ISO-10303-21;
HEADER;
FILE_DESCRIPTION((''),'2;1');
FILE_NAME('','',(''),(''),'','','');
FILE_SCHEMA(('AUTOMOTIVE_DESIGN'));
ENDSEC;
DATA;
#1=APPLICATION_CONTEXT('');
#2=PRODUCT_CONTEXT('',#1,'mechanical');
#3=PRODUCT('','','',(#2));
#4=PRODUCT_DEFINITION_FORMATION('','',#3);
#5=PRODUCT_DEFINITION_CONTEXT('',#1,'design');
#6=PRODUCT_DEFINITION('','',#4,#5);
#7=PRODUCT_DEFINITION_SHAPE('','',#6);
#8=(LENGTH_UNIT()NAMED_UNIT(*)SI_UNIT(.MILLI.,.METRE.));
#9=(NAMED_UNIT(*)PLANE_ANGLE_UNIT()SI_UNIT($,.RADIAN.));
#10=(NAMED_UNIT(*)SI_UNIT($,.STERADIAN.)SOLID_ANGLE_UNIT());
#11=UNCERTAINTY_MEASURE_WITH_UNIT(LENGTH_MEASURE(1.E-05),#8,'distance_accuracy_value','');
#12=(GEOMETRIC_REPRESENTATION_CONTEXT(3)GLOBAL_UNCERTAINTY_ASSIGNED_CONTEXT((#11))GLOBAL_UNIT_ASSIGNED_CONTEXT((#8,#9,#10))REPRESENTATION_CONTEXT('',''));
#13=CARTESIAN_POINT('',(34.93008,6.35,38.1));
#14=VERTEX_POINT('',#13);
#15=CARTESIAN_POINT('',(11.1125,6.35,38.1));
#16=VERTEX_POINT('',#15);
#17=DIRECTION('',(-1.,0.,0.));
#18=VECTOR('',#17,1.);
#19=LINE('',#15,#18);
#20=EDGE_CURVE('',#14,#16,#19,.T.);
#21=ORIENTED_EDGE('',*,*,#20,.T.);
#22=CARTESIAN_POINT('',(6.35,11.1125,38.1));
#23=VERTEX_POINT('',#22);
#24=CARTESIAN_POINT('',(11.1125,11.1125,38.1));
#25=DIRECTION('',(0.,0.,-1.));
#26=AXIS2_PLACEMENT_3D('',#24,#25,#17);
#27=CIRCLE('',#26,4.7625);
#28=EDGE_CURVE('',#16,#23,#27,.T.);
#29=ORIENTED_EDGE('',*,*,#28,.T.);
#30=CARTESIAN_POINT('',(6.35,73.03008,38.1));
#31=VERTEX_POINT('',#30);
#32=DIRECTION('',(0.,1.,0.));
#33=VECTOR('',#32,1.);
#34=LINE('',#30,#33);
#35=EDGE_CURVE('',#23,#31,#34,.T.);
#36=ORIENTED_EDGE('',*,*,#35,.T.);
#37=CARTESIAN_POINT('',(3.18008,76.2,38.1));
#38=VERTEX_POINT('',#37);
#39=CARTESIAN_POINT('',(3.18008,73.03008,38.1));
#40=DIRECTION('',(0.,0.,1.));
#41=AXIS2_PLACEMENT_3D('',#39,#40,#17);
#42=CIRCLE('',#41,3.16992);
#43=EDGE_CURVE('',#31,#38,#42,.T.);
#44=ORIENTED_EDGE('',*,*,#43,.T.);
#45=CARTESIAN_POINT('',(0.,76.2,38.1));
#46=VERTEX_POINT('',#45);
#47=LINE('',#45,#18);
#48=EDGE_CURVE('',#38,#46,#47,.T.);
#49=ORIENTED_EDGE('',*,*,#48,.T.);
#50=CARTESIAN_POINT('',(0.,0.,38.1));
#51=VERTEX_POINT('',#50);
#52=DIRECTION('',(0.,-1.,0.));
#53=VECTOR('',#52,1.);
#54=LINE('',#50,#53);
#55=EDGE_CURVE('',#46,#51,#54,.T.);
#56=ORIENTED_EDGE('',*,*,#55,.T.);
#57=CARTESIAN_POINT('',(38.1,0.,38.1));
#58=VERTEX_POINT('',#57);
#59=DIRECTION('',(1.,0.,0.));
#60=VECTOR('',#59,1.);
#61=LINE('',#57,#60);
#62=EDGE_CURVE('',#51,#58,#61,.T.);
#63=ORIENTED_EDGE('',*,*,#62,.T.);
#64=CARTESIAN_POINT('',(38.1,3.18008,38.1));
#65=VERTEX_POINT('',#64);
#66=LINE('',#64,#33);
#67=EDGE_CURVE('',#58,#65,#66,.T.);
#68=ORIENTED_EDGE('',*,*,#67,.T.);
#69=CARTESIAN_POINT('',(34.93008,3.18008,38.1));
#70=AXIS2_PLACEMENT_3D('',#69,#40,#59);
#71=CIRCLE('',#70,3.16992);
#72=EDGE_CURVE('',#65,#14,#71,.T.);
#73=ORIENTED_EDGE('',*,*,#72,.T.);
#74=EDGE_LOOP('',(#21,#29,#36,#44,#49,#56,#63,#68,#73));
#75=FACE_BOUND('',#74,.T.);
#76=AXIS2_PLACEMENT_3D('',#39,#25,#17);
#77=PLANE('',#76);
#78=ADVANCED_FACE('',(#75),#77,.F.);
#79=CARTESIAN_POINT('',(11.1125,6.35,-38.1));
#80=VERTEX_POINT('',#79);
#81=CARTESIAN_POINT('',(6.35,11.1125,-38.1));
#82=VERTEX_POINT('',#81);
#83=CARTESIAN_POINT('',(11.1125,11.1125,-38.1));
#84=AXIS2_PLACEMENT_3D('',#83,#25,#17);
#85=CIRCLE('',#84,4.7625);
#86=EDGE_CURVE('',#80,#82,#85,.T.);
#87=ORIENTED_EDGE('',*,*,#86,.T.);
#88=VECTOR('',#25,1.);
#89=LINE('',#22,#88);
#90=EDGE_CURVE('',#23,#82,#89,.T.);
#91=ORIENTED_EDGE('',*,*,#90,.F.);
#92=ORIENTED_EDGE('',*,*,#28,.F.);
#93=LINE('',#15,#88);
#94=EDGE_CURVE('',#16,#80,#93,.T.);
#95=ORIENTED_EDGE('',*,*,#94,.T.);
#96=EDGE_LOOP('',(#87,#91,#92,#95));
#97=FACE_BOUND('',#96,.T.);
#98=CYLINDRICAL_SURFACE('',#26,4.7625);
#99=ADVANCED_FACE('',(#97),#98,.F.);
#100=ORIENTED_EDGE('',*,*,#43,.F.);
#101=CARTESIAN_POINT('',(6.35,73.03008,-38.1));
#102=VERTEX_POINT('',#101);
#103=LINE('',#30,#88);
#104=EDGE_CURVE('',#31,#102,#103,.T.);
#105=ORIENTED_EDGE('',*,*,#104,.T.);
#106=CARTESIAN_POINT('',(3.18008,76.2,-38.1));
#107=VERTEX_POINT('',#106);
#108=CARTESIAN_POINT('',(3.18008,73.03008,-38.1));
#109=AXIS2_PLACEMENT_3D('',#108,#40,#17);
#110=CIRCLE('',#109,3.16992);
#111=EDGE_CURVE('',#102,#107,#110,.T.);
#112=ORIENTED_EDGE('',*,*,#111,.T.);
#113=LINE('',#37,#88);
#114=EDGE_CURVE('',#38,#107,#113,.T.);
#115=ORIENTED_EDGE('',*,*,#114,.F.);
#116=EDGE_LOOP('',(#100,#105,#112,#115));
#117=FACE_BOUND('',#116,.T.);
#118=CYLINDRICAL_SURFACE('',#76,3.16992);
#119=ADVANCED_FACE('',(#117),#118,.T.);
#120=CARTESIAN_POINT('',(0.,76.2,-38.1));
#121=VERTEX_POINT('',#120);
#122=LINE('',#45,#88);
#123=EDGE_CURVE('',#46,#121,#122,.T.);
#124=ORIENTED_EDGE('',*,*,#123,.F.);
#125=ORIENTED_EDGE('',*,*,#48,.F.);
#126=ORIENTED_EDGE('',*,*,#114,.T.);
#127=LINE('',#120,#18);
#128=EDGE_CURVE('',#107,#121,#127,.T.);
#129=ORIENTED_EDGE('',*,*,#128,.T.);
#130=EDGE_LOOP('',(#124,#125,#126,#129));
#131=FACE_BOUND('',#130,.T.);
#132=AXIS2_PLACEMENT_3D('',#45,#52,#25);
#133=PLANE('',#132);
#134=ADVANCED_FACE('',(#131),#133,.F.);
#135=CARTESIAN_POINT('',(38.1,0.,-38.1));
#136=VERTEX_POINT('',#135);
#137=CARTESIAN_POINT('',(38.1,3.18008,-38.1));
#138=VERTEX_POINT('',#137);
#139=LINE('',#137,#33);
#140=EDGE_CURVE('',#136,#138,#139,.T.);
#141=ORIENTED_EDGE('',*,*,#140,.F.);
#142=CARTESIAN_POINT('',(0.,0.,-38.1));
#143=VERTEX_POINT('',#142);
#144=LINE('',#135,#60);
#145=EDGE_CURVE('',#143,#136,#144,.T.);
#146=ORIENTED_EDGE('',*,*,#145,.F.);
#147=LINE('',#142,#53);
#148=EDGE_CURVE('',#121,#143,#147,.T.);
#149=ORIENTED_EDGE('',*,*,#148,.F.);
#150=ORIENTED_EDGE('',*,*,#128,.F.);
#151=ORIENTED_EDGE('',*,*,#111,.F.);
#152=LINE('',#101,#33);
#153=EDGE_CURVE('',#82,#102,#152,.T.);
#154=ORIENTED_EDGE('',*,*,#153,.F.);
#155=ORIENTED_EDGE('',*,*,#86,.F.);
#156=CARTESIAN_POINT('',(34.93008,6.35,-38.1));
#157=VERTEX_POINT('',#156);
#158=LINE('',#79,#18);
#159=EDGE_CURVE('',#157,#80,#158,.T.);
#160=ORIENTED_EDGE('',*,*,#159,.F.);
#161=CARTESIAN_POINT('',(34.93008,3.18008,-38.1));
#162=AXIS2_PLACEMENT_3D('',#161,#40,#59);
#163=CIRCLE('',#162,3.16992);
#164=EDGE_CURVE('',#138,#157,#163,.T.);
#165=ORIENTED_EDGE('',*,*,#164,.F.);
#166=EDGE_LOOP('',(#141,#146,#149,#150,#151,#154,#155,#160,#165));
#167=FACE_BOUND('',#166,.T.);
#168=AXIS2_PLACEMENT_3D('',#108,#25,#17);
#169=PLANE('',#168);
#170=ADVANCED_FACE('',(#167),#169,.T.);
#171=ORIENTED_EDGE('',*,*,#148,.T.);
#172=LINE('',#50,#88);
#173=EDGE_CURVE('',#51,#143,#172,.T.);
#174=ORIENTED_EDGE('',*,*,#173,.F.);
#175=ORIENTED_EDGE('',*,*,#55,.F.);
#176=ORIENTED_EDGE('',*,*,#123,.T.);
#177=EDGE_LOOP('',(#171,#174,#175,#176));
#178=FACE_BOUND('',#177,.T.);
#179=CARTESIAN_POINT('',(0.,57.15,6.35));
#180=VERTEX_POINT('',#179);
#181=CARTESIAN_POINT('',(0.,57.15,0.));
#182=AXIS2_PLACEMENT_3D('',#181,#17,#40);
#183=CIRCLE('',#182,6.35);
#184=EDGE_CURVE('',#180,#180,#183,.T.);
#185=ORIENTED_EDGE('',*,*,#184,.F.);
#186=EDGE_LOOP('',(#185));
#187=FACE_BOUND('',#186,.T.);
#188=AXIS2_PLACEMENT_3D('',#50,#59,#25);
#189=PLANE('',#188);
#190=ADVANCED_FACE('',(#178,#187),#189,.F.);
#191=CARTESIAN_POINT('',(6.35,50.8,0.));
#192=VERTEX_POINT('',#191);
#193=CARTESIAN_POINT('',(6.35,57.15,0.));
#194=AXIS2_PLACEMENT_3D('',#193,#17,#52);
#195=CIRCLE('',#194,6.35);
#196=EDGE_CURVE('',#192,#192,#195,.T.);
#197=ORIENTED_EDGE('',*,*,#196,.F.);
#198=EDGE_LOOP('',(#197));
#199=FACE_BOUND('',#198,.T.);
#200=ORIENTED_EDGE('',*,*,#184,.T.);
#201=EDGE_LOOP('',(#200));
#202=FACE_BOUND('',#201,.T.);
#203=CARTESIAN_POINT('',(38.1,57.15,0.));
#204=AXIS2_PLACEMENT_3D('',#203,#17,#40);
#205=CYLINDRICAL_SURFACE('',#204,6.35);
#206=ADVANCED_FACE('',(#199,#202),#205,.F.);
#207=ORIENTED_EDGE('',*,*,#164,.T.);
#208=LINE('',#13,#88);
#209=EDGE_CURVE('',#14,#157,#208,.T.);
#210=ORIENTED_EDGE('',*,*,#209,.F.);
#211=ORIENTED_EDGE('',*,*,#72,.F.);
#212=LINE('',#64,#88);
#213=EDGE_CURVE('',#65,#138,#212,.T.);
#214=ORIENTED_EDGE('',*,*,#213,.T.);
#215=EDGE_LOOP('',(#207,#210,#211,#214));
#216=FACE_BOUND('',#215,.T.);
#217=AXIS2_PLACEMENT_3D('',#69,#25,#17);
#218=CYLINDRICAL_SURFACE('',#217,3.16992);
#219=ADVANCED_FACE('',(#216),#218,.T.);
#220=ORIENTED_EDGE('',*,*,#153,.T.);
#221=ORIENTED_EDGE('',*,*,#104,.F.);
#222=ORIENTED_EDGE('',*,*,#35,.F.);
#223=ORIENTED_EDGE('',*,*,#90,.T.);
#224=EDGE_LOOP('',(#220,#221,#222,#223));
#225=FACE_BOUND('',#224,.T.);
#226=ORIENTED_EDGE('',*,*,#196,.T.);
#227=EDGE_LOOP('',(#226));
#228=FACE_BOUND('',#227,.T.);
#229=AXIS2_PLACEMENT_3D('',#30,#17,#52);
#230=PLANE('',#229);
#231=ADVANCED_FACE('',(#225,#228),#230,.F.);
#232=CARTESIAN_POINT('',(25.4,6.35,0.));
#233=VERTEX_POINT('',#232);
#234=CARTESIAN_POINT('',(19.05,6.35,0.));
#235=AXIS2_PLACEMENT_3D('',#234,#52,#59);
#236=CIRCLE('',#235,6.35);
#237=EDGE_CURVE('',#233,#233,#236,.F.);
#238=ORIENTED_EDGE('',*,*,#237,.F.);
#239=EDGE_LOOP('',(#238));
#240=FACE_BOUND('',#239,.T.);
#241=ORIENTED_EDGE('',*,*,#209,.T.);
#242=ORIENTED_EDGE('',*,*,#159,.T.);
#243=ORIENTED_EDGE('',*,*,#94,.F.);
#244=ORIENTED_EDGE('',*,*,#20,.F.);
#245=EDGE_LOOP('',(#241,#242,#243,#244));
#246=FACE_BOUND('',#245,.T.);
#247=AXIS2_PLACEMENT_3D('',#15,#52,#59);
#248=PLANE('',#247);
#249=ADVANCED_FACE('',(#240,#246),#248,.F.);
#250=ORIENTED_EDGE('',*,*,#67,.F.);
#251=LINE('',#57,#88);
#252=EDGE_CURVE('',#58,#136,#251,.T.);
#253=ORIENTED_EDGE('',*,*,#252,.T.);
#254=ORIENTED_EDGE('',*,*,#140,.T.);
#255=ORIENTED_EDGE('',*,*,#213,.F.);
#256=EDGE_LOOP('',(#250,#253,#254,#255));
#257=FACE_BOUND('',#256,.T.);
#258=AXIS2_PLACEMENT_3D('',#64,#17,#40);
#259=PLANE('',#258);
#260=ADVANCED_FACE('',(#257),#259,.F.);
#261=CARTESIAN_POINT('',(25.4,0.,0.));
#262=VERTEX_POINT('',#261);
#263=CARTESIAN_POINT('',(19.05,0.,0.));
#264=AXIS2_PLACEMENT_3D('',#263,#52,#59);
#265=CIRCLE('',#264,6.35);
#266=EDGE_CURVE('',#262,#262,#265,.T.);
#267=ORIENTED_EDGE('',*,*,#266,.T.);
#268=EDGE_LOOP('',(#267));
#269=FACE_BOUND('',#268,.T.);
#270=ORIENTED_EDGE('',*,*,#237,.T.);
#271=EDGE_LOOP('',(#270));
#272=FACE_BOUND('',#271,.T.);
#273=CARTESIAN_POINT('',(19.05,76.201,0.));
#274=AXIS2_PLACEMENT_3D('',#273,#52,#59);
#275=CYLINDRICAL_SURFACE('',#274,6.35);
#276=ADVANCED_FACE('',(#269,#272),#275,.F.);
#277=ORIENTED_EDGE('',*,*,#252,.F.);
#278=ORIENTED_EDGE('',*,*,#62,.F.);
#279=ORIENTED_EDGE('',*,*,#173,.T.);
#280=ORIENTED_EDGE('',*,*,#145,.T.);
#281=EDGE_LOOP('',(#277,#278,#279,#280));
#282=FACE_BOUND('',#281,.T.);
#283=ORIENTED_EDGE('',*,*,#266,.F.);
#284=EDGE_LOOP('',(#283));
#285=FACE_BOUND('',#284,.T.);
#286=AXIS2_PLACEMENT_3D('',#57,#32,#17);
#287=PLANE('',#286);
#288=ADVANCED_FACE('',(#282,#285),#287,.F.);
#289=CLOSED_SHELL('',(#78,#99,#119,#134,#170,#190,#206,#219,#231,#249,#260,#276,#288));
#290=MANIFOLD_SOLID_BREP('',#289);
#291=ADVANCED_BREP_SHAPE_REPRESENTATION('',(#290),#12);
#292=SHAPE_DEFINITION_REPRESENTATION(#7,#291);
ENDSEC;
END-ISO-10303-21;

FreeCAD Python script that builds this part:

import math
import FreeCAD as App
import Part
import Sketcher

V = App.Vector
Q = App.Units.Quantity

doc = App.newDocument("Part")
body = doc.addObject("PartDesign::Body", "Body")

sketch1 = body.newObject("Sketcher::SketchObject", "Sketch")
sketch1.AttachmentSupport = (doc.getObject("XY_Plane"), [""])
sketch1.MapMode = "FlatFace"
sketch1.addGeometry([
    Part.LineSegment(V(0, 76.2, 0), V(0, 0, 0)),
    Part.LineSegment(V(0, 0, 0), V(38.1, 0, 0)),
    Part.LineSegment(V(38.1, 0, 0), V(38.1, 3.2, 0)),
    Part.ArcOfCircle(Part.Circle(V(34.9, 3.2, 0), V(0, 0, 1), 3.2), math.radians(0), math.radians(90)),
    Part.LineSegment(V(34.9, 6.3, 0), V(11.1, 6.3, 0)),
    Part.ArcOfCircle(Part.Circle(V(11.1, 11.1, 0), V(0, 0, 1), 4.8), math.radians(-180), math.radians(-90)),
    Part.LineSegment(V(6.3, 11.1, 0), V(6.3, 73, 0)),
    Part.ArcOfCircle(Part.Circle(V(3.2, 73, 0), V(0, 0, 1), 3.2), math.radians(0), math.radians(90)),
    Part.LineSegment(V(3.2, 76.2, 0), V(0, 76.2, 0)),
], False)
sketch1.addConstraint([
    Sketcher.Constraint("Coincident", 0, 2, 1, 1),
    Sketcher.Constraint("Coincident", 1, 2, 2, 1),
    Sketcher.Constraint("Tangent", 2, 2, 3, 1),
    Sketcher.Constraint("Tangent", 3, 2, 4, 1),
    Sketcher.Constraint("Tangent", 4, 2, 5, 2),
    Sketcher.Constraint("Tangent", 5, 1, 6, 1),
    Sketcher.Constraint("Tangent", 6, 2, 7, 1),
    Sketcher.Constraint("Tangent", 7, 2, 8, 1),
    Sketcher.Constraint("Coincident", 8, 2, 0, 1),
    Sketcher.Constraint("Vertical", 0),
    Sketcher.Constraint("Horizontal", 1),
    Sketcher.Constraint("Vertical", 2),
    Sketcher.Constraint("Horizontal", 4),
    Sketcher.Constraint("Vertical", 6),
    Sketcher.Constraint("Horizontal", 8),
    Sketcher.Constraint("Coincident", 0, 2, -1, 1),
    Sketcher.Constraint("Equal", 3, 7),
    Sketcher.Constraint("Equal", 8, 2),
    Sketcher.Constraint("DistanceY", 0, 2, 0, 1, Q("3 in")),
    Sketcher.Constraint("DistanceX", 1, 1, 1, 2, Q("1.5 in")),
    Sketcher.Constraint("Radius", 5, Q("0.1875 in")),
    Sketcher.Constraint("Radius", 3, Q("0.1248 in")),
    Sketcher.Constraint("DistanceY", -1, 1, 3, 2, Q("0.25 in")),
])
pad1 = body.newObject("PartDesign::Pad", "Pad")
pad1.Profile = sketch1
pad1.Length = Q("3 in")
pad1.Midplane = True

sketch2 = body.newObject("Sketcher::SketchObject", "Sketch001")
sketch2.AttachmentSupport = (doc.getObject("XZ_Plane"), [""])
sketch2.MapMode = "FlatFace"
sketch2.addGeometry(Part.Circle(V(19, 0, 0), V(0, 0, 1), 6), False)
sketch2.addConstraint([
    Sketcher.Constraint("PointOnObject", 0, 3, -1),
    Sketcher.Constraint("Diameter", 0, Q("0.5 in")),
    Sketcher.Constraint("DistanceX", -1, 1, 0, 3, Q("0.75 in")),
])
pocket1 = body.newObject("PartDesign::Pocket", "Pocket")
pocket1.Profile = sketch2
pocket1.Type = "UpToFirst"

sketch3 = body.newObject("Sketcher::SketchObject", "Sketch002")
sketch3.AttachmentSupport = (doc.getObject("YZ_Plane"), [""])
sketch3.MapMode = "FlatFace"
sketch3.addGeometry(Part.Circle(V(57, 0, 0), V(0, 0, 1), 6), False)
sketch3.addConstraint([
    Sketcher.Constraint("PointOnObject", 0, 3, -1),
    Sketcher.Constraint("Diameter", 0, Q("0.5 in")),
    Sketcher.Constraint("DistanceX", -1, 1, 0, 3, Q("2.25 in")),
])
pocket2 = body.newObject("PartDesign::Pocket", "Pocket001")
pocket2.Profile = sketch3
pocket2.Type = "ThroughAll"
pocket2.Reversed = True

doc.recompute()
